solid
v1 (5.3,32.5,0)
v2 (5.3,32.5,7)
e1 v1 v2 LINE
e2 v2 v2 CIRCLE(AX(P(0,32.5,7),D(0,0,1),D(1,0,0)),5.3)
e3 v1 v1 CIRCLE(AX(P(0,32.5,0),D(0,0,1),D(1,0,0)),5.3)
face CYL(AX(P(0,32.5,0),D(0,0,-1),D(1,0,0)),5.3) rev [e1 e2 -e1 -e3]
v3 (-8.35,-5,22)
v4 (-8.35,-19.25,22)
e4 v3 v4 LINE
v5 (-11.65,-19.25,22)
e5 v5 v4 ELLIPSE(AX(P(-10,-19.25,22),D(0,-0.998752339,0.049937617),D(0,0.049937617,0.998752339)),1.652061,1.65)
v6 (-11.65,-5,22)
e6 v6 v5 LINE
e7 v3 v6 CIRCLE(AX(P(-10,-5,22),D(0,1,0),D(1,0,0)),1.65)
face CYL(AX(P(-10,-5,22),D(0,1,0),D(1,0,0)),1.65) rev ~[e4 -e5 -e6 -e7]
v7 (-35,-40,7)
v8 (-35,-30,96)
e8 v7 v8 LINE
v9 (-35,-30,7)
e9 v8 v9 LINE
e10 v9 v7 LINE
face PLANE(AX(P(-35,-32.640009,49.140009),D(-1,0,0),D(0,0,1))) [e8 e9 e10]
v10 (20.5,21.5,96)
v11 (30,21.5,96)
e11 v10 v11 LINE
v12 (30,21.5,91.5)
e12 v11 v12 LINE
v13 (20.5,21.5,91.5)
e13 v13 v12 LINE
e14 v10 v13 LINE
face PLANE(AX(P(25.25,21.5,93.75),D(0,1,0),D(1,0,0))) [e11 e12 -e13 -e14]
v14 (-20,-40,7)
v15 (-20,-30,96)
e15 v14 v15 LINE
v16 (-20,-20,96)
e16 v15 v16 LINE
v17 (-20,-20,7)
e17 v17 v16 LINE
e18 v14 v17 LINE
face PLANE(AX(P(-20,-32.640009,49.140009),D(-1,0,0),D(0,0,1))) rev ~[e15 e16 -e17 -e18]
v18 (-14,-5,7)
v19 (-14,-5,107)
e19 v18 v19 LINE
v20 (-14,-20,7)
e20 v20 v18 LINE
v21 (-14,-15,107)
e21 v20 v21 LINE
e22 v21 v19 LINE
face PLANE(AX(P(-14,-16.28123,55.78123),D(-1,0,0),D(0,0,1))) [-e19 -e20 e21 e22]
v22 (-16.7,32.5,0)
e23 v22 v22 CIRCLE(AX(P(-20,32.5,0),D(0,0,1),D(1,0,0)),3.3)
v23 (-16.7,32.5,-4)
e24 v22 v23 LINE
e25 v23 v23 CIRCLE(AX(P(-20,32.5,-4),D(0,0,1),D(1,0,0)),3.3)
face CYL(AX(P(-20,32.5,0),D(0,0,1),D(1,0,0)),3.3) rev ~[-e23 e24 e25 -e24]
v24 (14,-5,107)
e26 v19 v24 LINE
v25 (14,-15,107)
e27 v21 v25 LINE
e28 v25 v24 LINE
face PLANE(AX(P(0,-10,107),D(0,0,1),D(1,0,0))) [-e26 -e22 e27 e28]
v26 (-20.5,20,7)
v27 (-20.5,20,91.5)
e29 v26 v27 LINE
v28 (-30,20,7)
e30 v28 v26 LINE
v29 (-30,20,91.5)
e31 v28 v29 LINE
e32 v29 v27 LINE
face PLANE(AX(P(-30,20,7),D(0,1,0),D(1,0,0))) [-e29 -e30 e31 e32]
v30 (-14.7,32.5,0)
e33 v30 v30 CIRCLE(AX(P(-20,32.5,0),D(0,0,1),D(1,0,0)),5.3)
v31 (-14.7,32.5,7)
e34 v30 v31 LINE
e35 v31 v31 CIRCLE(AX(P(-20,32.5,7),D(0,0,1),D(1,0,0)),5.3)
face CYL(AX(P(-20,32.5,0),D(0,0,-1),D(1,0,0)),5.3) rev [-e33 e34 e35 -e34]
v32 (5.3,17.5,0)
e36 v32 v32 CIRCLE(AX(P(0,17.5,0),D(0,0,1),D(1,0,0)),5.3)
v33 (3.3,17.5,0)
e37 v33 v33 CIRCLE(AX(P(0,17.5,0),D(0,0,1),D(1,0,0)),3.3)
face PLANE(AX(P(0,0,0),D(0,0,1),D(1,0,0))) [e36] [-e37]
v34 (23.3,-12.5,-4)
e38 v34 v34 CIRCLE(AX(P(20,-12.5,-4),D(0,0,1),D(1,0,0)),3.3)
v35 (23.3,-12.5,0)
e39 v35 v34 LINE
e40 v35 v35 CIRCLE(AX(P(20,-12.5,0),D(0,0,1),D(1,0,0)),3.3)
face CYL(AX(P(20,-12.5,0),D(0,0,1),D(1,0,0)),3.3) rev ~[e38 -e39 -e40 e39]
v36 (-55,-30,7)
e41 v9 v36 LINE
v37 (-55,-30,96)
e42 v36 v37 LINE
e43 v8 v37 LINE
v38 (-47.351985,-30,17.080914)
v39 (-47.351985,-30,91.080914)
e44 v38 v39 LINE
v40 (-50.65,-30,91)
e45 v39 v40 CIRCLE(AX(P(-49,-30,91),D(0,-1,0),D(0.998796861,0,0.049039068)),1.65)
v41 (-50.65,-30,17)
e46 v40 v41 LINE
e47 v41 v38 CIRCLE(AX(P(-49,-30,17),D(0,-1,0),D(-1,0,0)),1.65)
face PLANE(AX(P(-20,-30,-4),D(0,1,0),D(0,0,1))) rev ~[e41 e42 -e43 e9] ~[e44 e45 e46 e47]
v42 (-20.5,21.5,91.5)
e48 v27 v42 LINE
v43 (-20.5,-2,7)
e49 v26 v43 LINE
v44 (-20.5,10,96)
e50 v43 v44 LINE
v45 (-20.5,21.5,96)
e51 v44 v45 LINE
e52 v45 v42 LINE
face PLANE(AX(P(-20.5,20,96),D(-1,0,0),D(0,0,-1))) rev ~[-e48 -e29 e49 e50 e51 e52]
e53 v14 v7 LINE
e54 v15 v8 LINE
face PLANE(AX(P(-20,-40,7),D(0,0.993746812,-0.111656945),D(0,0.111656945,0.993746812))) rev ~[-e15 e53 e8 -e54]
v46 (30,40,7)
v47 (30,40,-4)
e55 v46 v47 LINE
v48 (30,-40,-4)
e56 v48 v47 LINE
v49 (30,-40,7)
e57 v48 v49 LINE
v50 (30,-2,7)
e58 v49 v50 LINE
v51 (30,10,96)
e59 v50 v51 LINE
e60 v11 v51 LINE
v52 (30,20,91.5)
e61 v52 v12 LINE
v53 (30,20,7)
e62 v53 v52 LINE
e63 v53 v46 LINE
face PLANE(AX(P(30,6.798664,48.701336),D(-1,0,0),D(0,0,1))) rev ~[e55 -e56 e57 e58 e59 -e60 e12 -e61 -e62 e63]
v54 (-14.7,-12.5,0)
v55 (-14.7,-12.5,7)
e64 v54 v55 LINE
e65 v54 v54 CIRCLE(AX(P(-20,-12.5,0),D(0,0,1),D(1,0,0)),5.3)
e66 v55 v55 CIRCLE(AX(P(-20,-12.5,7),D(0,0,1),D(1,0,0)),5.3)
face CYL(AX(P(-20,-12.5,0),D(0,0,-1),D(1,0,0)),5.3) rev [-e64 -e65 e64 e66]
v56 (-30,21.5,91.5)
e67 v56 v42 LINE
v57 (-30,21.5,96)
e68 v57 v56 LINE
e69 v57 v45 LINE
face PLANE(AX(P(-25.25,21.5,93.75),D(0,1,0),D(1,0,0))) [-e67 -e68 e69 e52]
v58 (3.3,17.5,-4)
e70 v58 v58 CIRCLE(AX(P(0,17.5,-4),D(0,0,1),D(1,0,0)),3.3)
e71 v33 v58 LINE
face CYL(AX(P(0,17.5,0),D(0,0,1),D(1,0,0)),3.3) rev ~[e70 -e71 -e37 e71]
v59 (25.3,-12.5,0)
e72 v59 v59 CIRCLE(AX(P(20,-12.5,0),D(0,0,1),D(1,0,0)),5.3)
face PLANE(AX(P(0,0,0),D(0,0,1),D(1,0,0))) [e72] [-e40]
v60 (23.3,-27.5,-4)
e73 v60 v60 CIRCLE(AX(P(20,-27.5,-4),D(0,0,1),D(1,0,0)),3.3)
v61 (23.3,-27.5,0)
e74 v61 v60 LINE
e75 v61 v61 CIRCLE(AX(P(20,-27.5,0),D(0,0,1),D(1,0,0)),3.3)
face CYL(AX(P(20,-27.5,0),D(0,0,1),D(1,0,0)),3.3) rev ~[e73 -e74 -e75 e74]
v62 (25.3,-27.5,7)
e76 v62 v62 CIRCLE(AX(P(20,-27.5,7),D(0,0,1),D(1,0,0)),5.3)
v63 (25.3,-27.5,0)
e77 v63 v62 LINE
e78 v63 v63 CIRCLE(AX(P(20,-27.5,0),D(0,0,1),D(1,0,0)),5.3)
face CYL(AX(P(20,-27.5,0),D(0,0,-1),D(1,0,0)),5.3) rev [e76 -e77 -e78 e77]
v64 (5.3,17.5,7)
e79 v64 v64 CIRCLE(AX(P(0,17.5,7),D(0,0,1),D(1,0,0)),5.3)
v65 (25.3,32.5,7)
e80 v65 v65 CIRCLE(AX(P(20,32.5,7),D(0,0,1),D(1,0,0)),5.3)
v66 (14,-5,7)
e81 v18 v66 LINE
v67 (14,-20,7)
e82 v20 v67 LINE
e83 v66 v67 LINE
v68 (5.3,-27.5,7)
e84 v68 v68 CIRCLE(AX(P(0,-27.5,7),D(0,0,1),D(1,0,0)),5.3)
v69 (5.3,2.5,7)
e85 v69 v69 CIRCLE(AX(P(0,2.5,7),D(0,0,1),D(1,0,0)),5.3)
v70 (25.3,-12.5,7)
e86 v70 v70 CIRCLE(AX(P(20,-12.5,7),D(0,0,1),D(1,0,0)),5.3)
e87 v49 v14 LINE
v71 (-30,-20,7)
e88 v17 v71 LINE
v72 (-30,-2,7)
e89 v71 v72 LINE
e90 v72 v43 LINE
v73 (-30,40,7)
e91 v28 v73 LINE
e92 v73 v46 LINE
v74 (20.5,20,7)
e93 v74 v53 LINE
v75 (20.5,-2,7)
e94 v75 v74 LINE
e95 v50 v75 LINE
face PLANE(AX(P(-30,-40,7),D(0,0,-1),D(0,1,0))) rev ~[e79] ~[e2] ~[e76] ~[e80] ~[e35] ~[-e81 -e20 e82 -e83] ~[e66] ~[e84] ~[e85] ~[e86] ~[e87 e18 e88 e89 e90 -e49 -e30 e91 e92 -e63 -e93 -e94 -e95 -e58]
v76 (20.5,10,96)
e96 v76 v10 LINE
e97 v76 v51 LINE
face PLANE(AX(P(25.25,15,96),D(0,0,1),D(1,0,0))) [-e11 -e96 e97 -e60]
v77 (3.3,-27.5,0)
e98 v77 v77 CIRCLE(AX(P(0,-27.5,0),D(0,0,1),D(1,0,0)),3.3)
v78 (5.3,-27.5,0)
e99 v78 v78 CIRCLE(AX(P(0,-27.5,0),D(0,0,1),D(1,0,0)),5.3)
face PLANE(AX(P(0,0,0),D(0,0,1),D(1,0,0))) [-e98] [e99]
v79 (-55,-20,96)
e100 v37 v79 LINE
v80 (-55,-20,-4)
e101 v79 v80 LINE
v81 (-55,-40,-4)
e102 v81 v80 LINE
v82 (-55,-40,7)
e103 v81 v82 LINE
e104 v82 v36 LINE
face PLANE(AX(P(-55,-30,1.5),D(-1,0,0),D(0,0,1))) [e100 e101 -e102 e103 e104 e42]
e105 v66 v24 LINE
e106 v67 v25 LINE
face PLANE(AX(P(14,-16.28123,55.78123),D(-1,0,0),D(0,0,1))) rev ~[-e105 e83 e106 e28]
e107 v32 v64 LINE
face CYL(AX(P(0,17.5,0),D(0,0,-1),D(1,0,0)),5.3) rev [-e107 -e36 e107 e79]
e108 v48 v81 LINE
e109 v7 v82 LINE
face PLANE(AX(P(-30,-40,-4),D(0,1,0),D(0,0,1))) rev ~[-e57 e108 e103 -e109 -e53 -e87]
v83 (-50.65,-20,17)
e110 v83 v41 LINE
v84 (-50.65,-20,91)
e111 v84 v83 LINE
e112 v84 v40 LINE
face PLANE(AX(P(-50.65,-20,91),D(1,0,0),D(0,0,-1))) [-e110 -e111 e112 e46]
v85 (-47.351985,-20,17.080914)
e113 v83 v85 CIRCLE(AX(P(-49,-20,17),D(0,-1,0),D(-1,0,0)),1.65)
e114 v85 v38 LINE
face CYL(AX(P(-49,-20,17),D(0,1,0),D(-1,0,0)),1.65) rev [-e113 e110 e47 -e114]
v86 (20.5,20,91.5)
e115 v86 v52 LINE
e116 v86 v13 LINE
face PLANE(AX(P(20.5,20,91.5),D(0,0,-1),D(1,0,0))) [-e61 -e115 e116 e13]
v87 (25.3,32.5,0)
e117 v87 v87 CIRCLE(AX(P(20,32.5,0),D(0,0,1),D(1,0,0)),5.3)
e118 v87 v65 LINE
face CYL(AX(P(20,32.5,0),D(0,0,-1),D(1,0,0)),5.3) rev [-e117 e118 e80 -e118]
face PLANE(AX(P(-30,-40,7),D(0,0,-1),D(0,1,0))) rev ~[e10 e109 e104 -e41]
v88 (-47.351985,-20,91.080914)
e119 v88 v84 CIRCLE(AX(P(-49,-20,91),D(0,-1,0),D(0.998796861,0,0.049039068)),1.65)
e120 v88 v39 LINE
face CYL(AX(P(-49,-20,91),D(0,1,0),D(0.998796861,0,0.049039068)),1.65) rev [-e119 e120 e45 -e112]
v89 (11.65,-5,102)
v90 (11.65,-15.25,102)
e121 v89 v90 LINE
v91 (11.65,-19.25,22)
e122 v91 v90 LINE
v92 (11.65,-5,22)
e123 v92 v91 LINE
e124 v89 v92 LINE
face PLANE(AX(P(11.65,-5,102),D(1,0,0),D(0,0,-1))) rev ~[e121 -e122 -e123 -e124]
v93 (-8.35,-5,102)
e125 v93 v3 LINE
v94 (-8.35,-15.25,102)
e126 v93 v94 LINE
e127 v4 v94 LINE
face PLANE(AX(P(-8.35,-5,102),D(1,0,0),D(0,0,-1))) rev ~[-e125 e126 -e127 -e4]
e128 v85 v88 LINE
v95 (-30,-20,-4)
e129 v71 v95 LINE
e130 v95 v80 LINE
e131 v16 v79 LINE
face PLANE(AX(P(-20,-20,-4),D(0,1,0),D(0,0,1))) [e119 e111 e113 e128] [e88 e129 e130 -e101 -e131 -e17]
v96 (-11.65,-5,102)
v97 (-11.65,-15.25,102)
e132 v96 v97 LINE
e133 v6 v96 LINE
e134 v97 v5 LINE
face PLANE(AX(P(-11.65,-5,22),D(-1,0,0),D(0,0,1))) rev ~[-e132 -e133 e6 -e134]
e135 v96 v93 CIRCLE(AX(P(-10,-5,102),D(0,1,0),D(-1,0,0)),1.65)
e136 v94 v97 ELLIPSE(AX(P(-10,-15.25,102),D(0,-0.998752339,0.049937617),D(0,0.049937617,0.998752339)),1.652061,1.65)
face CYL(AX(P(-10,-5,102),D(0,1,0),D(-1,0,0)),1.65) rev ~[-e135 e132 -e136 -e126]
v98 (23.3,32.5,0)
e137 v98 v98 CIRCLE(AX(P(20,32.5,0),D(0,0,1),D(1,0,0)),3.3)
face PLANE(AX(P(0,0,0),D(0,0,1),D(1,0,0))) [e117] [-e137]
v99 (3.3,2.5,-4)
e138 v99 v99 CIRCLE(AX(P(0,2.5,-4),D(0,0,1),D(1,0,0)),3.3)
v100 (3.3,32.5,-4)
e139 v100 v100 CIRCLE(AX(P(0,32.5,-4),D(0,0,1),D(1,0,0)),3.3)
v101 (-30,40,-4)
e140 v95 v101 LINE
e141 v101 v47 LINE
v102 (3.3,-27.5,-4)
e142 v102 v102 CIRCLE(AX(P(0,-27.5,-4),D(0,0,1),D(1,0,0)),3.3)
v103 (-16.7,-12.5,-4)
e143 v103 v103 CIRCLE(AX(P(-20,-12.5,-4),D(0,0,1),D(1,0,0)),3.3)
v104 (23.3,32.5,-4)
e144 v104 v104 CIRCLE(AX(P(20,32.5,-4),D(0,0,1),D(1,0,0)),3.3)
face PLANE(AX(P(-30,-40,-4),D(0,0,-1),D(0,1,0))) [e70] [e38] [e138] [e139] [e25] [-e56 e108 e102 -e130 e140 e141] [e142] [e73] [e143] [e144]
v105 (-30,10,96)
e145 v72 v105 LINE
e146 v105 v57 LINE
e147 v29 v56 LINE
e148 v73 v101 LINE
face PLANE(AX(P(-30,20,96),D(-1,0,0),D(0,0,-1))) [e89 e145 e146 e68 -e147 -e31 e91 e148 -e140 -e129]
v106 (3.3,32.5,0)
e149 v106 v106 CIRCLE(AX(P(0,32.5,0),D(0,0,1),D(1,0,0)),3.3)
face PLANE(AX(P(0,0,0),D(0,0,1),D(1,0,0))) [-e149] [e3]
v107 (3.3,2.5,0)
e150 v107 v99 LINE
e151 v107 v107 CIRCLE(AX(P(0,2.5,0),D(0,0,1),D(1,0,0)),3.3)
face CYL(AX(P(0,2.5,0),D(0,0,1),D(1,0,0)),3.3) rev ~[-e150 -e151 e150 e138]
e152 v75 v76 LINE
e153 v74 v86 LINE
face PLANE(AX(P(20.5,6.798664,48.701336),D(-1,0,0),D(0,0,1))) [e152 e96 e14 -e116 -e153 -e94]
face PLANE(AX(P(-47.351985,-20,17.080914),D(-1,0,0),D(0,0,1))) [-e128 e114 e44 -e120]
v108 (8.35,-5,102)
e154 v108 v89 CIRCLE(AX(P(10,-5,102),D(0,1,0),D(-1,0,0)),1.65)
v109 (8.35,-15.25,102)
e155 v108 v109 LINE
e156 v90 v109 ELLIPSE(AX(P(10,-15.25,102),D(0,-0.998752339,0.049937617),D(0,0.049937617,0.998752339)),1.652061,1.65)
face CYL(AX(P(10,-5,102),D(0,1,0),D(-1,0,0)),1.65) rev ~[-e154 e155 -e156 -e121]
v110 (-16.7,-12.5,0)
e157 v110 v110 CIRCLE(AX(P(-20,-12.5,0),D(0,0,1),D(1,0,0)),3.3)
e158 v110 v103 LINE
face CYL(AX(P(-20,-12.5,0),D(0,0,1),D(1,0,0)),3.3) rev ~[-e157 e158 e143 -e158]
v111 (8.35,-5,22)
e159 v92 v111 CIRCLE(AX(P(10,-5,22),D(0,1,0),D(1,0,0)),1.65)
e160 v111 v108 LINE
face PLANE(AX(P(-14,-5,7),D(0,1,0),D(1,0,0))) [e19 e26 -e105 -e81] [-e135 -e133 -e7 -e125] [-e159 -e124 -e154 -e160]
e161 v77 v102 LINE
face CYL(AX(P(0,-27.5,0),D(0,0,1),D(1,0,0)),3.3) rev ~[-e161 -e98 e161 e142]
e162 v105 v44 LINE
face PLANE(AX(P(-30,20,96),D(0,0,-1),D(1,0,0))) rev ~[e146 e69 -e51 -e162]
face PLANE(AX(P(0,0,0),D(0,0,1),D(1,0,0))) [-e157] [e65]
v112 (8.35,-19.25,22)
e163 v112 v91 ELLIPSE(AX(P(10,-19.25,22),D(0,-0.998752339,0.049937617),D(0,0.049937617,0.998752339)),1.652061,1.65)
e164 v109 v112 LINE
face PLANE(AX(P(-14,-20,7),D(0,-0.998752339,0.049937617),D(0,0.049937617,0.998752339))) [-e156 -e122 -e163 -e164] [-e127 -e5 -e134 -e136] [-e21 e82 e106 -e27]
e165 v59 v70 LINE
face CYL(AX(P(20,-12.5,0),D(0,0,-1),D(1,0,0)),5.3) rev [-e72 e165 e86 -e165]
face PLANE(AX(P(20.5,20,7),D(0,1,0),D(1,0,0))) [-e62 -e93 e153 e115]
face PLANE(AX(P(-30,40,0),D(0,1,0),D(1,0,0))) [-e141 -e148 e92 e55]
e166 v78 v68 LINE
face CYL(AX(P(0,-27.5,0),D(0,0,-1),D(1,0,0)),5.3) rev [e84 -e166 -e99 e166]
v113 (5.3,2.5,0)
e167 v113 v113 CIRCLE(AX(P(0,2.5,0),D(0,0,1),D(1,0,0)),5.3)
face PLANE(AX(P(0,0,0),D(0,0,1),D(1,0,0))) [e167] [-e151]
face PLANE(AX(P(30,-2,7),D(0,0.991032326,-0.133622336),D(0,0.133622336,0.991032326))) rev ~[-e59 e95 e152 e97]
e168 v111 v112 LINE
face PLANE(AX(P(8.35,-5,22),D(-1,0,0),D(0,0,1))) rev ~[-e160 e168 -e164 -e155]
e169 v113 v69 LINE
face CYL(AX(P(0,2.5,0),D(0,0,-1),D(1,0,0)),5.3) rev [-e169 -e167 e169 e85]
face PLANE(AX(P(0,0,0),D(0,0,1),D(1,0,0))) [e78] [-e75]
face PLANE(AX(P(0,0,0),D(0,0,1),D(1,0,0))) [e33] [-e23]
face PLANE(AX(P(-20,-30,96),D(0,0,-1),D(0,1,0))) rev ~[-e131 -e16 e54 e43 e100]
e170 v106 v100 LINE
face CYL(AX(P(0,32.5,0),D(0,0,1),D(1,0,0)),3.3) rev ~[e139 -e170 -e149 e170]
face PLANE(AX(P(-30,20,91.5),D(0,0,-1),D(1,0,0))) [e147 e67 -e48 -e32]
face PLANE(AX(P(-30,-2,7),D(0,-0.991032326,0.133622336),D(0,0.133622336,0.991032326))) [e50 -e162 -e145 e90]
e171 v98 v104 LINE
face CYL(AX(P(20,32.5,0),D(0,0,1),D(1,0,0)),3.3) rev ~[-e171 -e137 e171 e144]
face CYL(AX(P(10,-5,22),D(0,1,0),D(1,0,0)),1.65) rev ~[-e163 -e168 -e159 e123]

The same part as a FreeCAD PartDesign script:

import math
import FreeCAD as App
import Part
import Sketcher

V = App.Vector
Q = App.Units.Quantity

doc = App.newDocument("Part")
params = doc.addObject("Spreadsheet::Sheet", "Params")
for row, (alias, value) in enumerate([
    ("sketch1_diameter", "6.6 mm"),
    ("sketch1_width", "60 mm"),
    ("sketch1_height", "80 mm"),
    ("pad1_length", "4 mm"),
    ("sketch2_diameter", "10.6 mm"),
    ("sketch2_width", "60 mm"),
    ("sketch2_height", "80 mm"),
    ("pad2_length", "7 mm"),
    ("sketch3_height", "10 mm"),
    ("sketch3_width", "9.5 mm"),
    ("pad3_length", "89 mm"),
    ("sketch4_width", "12 mm"),
    ("sketch4_height", "89 mm"),
    ("pad4_length", "9.5 mm"),
    ("sketch5_width", "12 mm"),
    ("sketch5_height", "89 mm"),
    ("pad5_length", "9.5 mm"),
    ("sketch6_width", "9.5 mm"),
    ("sketch6_height", "4.5 mm"),
    ("pad6_length", "1.5 mm"),
    ("sketch7_width", "28 mm"),
    ("sketch7_height", "10 mm"),
    ("pad7_length", "100 mm"),
    ("sketch8_width", "5 mm"),
    ("sketch8_height", "100 mm"),
    ("pad8_length", "28 mm"),
    ("sketch9_height", "80 mm"),
    ("sketch9_radius", "1.65 mm"),
    ("pocket1_length", "18 mm"),
    ("sketch10_width", "10 mm"),
    ("sketch10_height", "100 mm"),
    ("pad9_length", "25 mm"),
    ("pad9_length2", "10 mm"),
    ("sketch11_width", "20 mm"),
    ("sketch11_height", "11 mm"),
    ("pad10_length", "25 mm"),
    ("sketch12_height", "74 mm"),
    ("sketch12_radius", "1.65 mm"),
    ("pocket2_length", "10 mm"),
    ("sketch13_width", "10 mm"),
    ("sketch13_height", "89 mm"),
    ("pad11_length", "15 mm"),
], start=1):
    params.set(f"A{row}", alias)
    params.set(f"B{row}", "=" + value)
    params.setAlias(f"B{row}", alias)

body = doc.addObject("PartDesign::Body", "Body")

sketch1 = body.newObject("Sketcher::SketchObject", "Sketch")
sketch1.AttachmentSupport = (doc.getObject("XY_Plane"), [""])
sketch1.MapMode = "FlatFace"
sketch1.addGeometry([
    Part.LineSegment(V(-30, 40, 0), V(-30, -40, 0)),
    Part.LineSegment(V(-30, -40, 0), V(30, -40, 0)),
    Part.LineSegment(V(30, -40, 0), V(30, 40, 0)),
    Part.LineSegment(V(30, 40, 0), V(-30, 40, 0)),
    Part.Circle(V(-20, -12.5, 0), V(0, 0, 1), 3.3),
    Part.Circle(V(0, -27.5, 0), V(0, 0, 1), 3.3),
    Part.Circle(V(20, -27.5, 0), V(0, 0, 1), 3.3),
    Part.Circle(V(20, -12.5, 0), V(0, 0, 1), 3.3),
    Part.Circle(V(-20, 32.5, 0), V(0, 0, 1), 3.3),
    Part.Circle(V(0, 2.5, 0), V(0, 0, 1), 3.3),
    Part.Circle(V(0, 17.5, 0), V(0, 0, 1), 3.3),
    Part.Circle(V(0, 32.5, 0), V(0, 0, 1), 3.3),
    Part.Circle(V(20, 32.5, 0), V(0, 0, 1), 3.3),
], False)
sketch1.addConstraint([
    Sketcher.Constraint("Coincident", 0, 2, 1, 1),
    Sketcher.Constraint("Coincident", 1, 2, 2, 1),
    Sketcher.Constraint("Coincident", 2, 2, 3, 1),
    Sketcher.Constraint("Coincident", 3, 2, 0, 1),
    Sketcher.Constraint("Vertical", 0),
    Sketcher.Constraint("Horizontal", 1),
    Sketcher.Constraint("Vertical", 2),
    Sketcher.Constraint("Horizontal", 3),
    Sketcher.Constraint("Equal", 4, 5),
    Sketcher.Constraint("Equal", 5, 6),
    Sketcher.Constraint("Equal", 6, 7),
    Sketcher.Constraint("Equal", 7, 8),
    Sketcher.Constraint("Equal", 8, 9),
    Sketcher.Constraint("Equal", 9, 10),
    Sketcher.Constraint("Equal", 10, 11),
    Sketcher.Constraint("Equal", 11, 12),
    Sketcher.Constraint("Symmetric", 0, 2, 2, 2, -1, 1),
    Sketcher.Constraint("Symmetric", 4, 3, 7, 3, -2),
    Sketcher.Constraint("Symmetric", 8, 3, 12, 3, -2),
    Sketcher.Constraint("PointOnObject", 5, 3, -2),
    Sketcher.Constraint("PointOnObject", 9, 3, -2),
    Sketcher.Constraint("PointOnObject", 10, 3, -2),
    Sketcher.Constraint("PointOnObject", 11, 3, -2),
    Sketcher.Constraint("Horizontal", 5, 3, 6, 3),
    Sketcher.Constraint("Horizontal", 8, 3, 11, 3),
    Sketcher.Constraint("Vertical", 6, 3, 7, 3),
    Sketcher.Constraint("Vertical", 4, 3, 8, 3),
    Sketcher.Constraint("Diameter", 4, Q("6.6 mm")),
    Sketcher.Constraint("DistanceX", 1, 1, 1, 2, Q("60 mm")),
    Sketcher.Constraint("DistanceY", 0, 2, 0, 1, Q("80 mm")),
    Sketcher.Constraint("DistanceX", 4, 3, -1, 1, Q("20 mm")),
    Sketcher.Constraint("DistanceY", 5, 3, 4, 3, Q("15 mm")),
    Sketcher.Constraint("DistanceY", 4, 3, 8, 3, Q("45 mm")),
    Sketcher.Constraint("DistanceY", 4, 3, 9, 3, Q("15 mm")),
    Sketcher.Constraint("DistanceY", 9, 3, 10, 3, Q("15 mm")),
    Sketcher.Constraint("DistanceY", 4, 3, -1, 1, Q("12.5 mm")),
])
sketch1.setExpression("Constraints[27]", "Params.sketch1_diameter")
sketch1.setExpression("Constraints[28]", "Params.sketch1_width")
sketch1.setExpression("Constraints[29]", "Params.sketch1_height")
pad1 = body.newObject("PartDesign::Pad", "Pad")
pad1.Profile = sketch1
pad1.setExpression("Length", "Params.pad1_length")
pad1.Reversed = True

sketch2 = body.newObject("Sketcher::SketchObject", "Sketch001")
sketch2.AttachmentSupport = (doc.getObject("XY_Plane"), [""])
sketch2.MapMode = "FlatFace"
sketch2.addGeometry([
    Part.LineSegment(V(-30, 40, 0), V(-30, -40, 0)),
    Part.LineSegment(V(-30, -40, 0), V(30, -40, 0)),
    Part.LineSegment(V(30, -40, 0), V(30, 40, 0)),
    Part.LineSegment(V(30, 40, 0), V(-30, 40, 0)),
    Part.Circle(V(-20, -12, 0), V(0, 0, 1), 5),
    Part.Circle(V(0, -28, 0), V(0, 0, 1), 5),
    Part.Circle(V(20, -28, 0), V(0, 0, 1), 5),
    Part.Circle(V(20, -12, 0), V(0, 0, 1), 5),
    Part.Circle(V(-20, 32, 0), V(0, 0, 1), 5),
    Part.Circle(V(0, 2, 0), V(0, 0, 1), 5),
    Part.Circle(V(0, 18, 0), V(0, 0, 1), 5),
    Part.Circle(V(0, 32, 0), V(0, 0, 1), 5),
    Part.Circle(V(20, 32, 0), V(0, 0, 1), 5),
], False)
sketch2.addConstraint([
    Sketcher.Constraint("Coincident", 0, 2, 1, 1),
    Sketcher.Constraint("Coincident", 1, 2, 2, 1),
    Sketcher.Constraint("Coincident", 2, 2, 3, 1),
    Sketcher.Constraint("Coincident", 3, 2, 0, 1),
    Sketcher.Constraint("Vertical", 0),
    Sketcher.Constraint("Horizontal", 1),
    Sketcher.Constraint("Vertical", 2),
    Sketcher.Constraint("Horizontal", 3),
    Sketcher.Constraint("Equal", 4, 5),
    Sketcher.Constraint("Equal", 5, 6),
    Sketcher.Constraint("Equal", 6, 7),
    Sketcher.Constraint("Equal", 7, 8),
    Sketcher.Constraint("Equal", 8, 9),
    Sketcher.Constraint("Equal", 9, 10),
    Sketcher.Constraint("Equal", 10, 11),
    Sketcher.Constraint("Equal", 11, 12),
    Sketcher.Constraint("Symmetric", 0, 2, 2, 2, -1, 1),
    Sketcher.Constraint("Symmetric", 4, 3, 7, 3, -2),
    Sketcher.Constraint("Symmetric", 8, 3, 12, 3, -2),
    Sketcher.Constraint("PointOnObject", 5, 3, -2),
    Sketcher.Constraint("PointOnObject", 9, 3, -2),
    Sketcher.Constraint("PointOnObject", 10, 3, -2),
    Sketcher.Constraint("PointOnObject", 11, 3, -2),
    Sketcher.Constraint("Horizontal", 5, 3, 6, 3),
    Sketcher.Constraint("Horizontal", 8, 3, 11, 3),
    Sketcher.Constraint("Vertical", 6, 3, 7, 3),
    Sketcher.Constraint("Vertical", 4, 3, 8, 3),
    Sketcher.Constraint("Diameter", 4, Q("10.6 mm")),
    Sketcher.Constraint("DistanceX", 1, 1, 1, 2, Q("60 mm")),
    Sketcher.Constraint("DistanceY", 0, 2, 0, 1, Q("80 mm")),
    Sketcher.Constraint("DistanceX", 4, 3, -1, 1, Q("20 mm")),
    Sketcher.Constraint("DistanceY", 5, 3, 4, 3, Q("15 mm")),
    Sketcher.Constraint("DistanceY", 4, 3, 8, 3, Q("45 mm")),
    Sketcher.Constraint("DistanceY", 4, 3, 9, 3, Q("15 mm")),
    Sketcher.Constraint("DistanceY", 9, 3, 10, 3, Q("15 mm")),
    Sketcher.Constraint("DistanceY", 4, 3, -1, 1, Q("12.5 mm")),
])
sketch2.setExpression("Constraints[27]", "Params.sketch2_diameter")
sketch2.setExpression("Constraints[28]", "Params.sketch2_width")
sketch2.setExpression("Constraints[29]", "Params.sketch2_height")
pad2 = body.newObject("PartDesign::Pad", "Pad001")
pad2.Profile = sketch2
pad2.setExpression("Length", "Params.pad2_length")

sketch3 = body.newObject("Sketcher::SketchObject", "Sketch002")
sketch3.AttachmentSupport = (doc.getObject("XY_Plane"), [""])
sketch3.MapMode = "FlatFace"
sketch3.AttachmentOffset = App.Placement(V(0, 0, 7), App.Rotation())
sketch3.addGeometry([
    Part.LineSegment(V(-30, 20, 0), V(-30, 10, 0)),
    Part.LineSegment(V(-30, 10, 0), V(-20, 10, 0)),
    Part.LineSegment(V(-20, 10, 0), V(-20, 20, 0)),
    Part.LineSegment(V(-20, 20, 0), V(-30, 20, 0)),
    Part.LineSegment(V(20, 20, 0), V(20, 10, 0)),
    Part.LineSegment(V(20, 10, 0), V(30, 10, 0)),
    Part.LineSegment(V(30, 10, 0), V(30, 20, 0)),
    Part.LineSegment(V(30, 20, 0), V(20, 20, 0)),
], False)
sketch3.addConstraint([
    Sketcher.Constraint("Coincident", 0, 2, 1, 1),
    Sketcher.Constraint("Coincident", 1, 2, 2, 1),
    Sketcher.Constraint("Coincident", 2, 2, 3, 1),
    Sketcher.Constraint("Coincident", 3, 2, 0, 1),
    Sketcher.Constraint("Coincident", 4, 2, 5, 1),
    Sketcher.Constraint("Coincident", 5, 2, 6, 1),
    Sketcher.Constraint("Coincident", 6, 2, 7, 1),
    Sketcher.Constraint("Coincident", 7, 2, 4, 1),
    Sketcher.Constraint("Vertical", 0),
    Sketcher.Constraint("Horizontal", 1),
    Sketcher.Constraint("Vertical", 2),
    Sketcher.Constraint("Horizontal", 3),
    Sketcher.Constraint("Vertical", 4),
    Sketcher.Constraint("Horizontal", 5),
    Sketcher.Constraint("Vertical", 6),
    Sketcher.Constraint("Horizontal", 7),
    Sketcher.Constraint("Symmetric", 1, 2, 4, 2, -2),
    Sketcher.Constraint("Symmetric", 3, 2, 6, 2, -2),
    Sketcher.Constraint("DistanceY", 0, 2, 0, 1, Q("10 mm")),
    Sketcher.Constraint("DistanceX", 1, 1, 1, 2, Q("9.5 mm")),
    Sketcher.Constraint("DistanceX", 0, 2, -1, 1, Q("30 mm")),
    Sketcher.Constraint("DistanceY", -1, 1, 0, 2, Q("10 mm")),
])
sketch3.setExpression("Constraints[18]", "Params.sketch3_height")
sketch3.setExpression("Constraints[19]", "Params.sketch3_width")
pad3 = body.newObject("PartDesign::Pad", "Pad002")
pad3.Profile = sketch3
pad3.setExpression("Length", "Params.pad3_length")

sketch4 = body.newObject("Sketcher::SketchObject", "Sketch003")
sketch4.AttachmentSupport = (doc.getObject("YZ_Plane"), [""])
sketch4.MapMode = "FlatFace"
sketch4.AttachmentOffset = App.Placement(V(0, 0, 30), App.Rotation())
sketch4.addGeometry([
    Part.LineSegment(V(10, 7, 0), V(10, 96, 0)),
    Part.LineSegment(V(10, 96, 0), V(-2, 7, 0)),
    Part.LineSegment(V(-2, 7, 0), V(10, 7, 0)),
], False)
sketch4.addConstraint([
    Sketcher.Constraint("Coincident", 0, 2, 1, 1),
    Sketcher.Constraint("Coincident", 1, 2, 2, 1),
    Sketcher.Constraint("Coincident", 2, 2, 0, 1),
    Sketcher.Constraint("Vertical", 0),
    Sketcher.Constraint("Horizontal", 2),
    Sketcher.Constraint("DistanceX", 2, 1, 2, 2, Q("12 mm")),
    Sketcher.Constraint("DistanceY", 0, 1, 0, 2, Q("89 mm")),
    Sketcher.Constraint("DistanceX", -1, 1, 0, 2, Q("10 mm")),
    Sketcher.Constraint("DistanceY", -1, 1, 0, 2, Q("96 mm")),
])
sketch4.setExpression("Constraints[5]", "Params.sketch4_width")
sketch4.setExpression("Constraints[6]", "Params.sketch4_height")
pad4 = body.newObject("PartDesign::Pad", "Pad003")
pad4.Profile = sketch4
pad4.setExpression("Length", "Params.pad4_length")
pad4.Reversed = True

sketch5 = body.newObject("Sketcher::SketchObject", "Sketch004")
sketch5.AttachmentSupport = (doc.getObject("YZ_Plane"), [""])
sketch5.MapMode = "FlatFace"
sketch5.AttachmentOffset = App.Placement(V(0, 0, -30), App.Rotation())
sketch5.addGeometry([
    Part.LineSegment(V(10, 96, 0), V(10, 7, 0)),
    Part.LineSegment(V(10, 7, 0), V(-2, 7, 0)),
    Part.LineSegment(V(-2, 7, 0), V(10, 96, 0)),
], False)
sketch5.addConstraint([
    Sketcher.Constraint("Coincident", 0, 2, 1, 1),
    Sketcher.Constraint("Coincident", 1, 2, 2, 1),
    Sketcher.Constraint("Coincident", 2, 2, 0, 1),
    Sketcher.Constraint("Vertical", 0),
    Sketcher.Constraint("Horizontal", 1),
    Sketcher.Constraint("DistanceX", 1, 2, 1, 1, Q("12 mm")),
    Sketcher.Constraint("DistanceY", 0, 2, 0, 1, Q("89 mm")),
    Sketcher.Constraint("DistanceX", -1, 1, 0, 2, Q("10 mm")),
    Sketcher.Constraint("DistanceY", -1, 1, 0, 2, Q("7 mm")),
])
sketch5.setExpression("Constraints[5]", "Params.sketch5_width")
sketch5.setExpression("Constraints[6]", "Params.sketch5_height")
pad5 = body.newObject("PartDesign::Pad", "Pad004")
pad5.Profile = sketch5
pad5.setExpression("Length", "Params.pad5_length")

sketch6 = body.newObject("Sketcher::SketchObject", "Sketch005")
sketch6.AttachmentSupport = (doc.getObject("XZ_Plane"), [""])
sketch6.MapMode = "FlatFace"
sketch6.AttachmentOffset = App.Placement(V(0, 0, -20), App.Rotation())
sketch6.addGeometry([
    Part.LineSegment(V(-30, 91.5, 0), V(-30, 96, 0)),
    Part.LineSegment(V(-30, 96, 0), V(-20.5, 96, 0)),
    Part.LineSegment(V(-20.5, 96, 0), V(-20.5, 91.5, 0)),
    Part.LineSegment(V(-20.5, 91.5, 0), V(-30, 91.5, 0)),
    Part.LineSegment(V(20.5, 91.5, 0), V(20.5, 96, 0)),
    Part.LineSegment(V(20.5, 96, 0), V(30, 96, 0)),
    Part.LineSegment(V(30, 96, 0), V(30, 91.5, 0)),
    Part.LineSegment(V(30, 91.5, 0), V(20.5, 91.5, 0)),
], False)
sketch6.addConstraint([
    Sketcher.Constraint("Coincident", 0, 2, 1, 1),
    Sketcher.Constraint("Coincident", 1, 2, 2, 1),
    Sketcher.Constraint("Coincident", 2, 2, 3, 1),
    Sketcher.Constraint("Coincident", 3, 2, 0, 1),
    Sketcher.Constraint("Coincident", 4, 2, 5, 1),
    Sketcher.Constraint("Coincident", 5, 2, 6, 1),
    Sketcher.Constraint("Coincident", 6, 2, 7, 1),
    Sketcher.Constraint("Coincident", 7, 2, 4, 1),
    Sketcher.Constraint("Vertical", 0),
    Sketcher.Constraint("Horizontal", 1),
    Sketcher.Constraint("Vertical", 2),
    Sketcher.Constraint("Horizontal", 3),
    Sketcher.Constraint("Vertical", 4),
    Sketcher.Constraint("Horizontal", 5),
    Sketcher.Constraint("Vertical", 6),
    Sketcher.Constraint("Horizontal", 7),
    Sketcher.Constraint("Symmetric", 1, 2, 4, 2, -2),
    Sketcher.Constraint("Symmetric", 3, 2, 6, 2, -2),
    Sketcher.Constraint("DistanceX", 1, 1, 1, 2, Q("9.5 mm")),
    Sketcher.Constraint("DistanceY", 0, 1, 0, 2, Q("4.5 mm")),
    Sketcher.Constraint("DistanceX", 0, 2, -1, 1, Q("30 mm")),
    Sketcher.Constraint("DistanceY", -1, 1, 0, 2, Q("96 mm")),
])
sketch6.setExpression("Constraints[18]", "Params.sketch6_width")
sketch6.setExpression("Constraints[19]", "Params.sketch6_height")
pad6 = body.newObject("PartDesign::Pad", "Pad005")
pad6.Profile = sketch6
pad6.setExpression("Length", "Params.pad6_length")
pad6.Reversed = True

sketch7 = body.newObject("Sketcher::SketchObject", "Sketch006")
sketch7.AttachmentSupport = (doc.getObject("XY_Plane"), [""])
sketch7.MapMode = "FlatFace"
sketch7.AttachmentOffset = App.Placement(V(0, 0, 7), App.Rotation())
sketch7.addGeometry([
    Part.LineSegment(V(-14, -5, 0), V(-14, -15, 0)),
    Part.LineSegment(V(-14, -15, 0), V(14, -15, 0)),
    Part.LineSegment(V(14, -15, 0), V(14, -5, 0)),
    Part.LineSegment(V(14, -5, 0), V(-14, -5, 0)),
], False)
sketch7.addConstraint([
    Sketcher.Constraint("Coincident", 0, 2, 1, 1),
    Sketcher.Constraint("Coincident", 1, 2, 2, 1),
    Sketcher.Constraint("Coincident", 2, 2, 3, 1),
    Sketcher.Constraint("Coincident", 3, 2, 0, 1),
    Sketcher.Constraint("Vertical", 0),
    Sketcher.Constraint("Horizontal", 1),
    Sketcher.Constraint("Vertical", 2),
    Sketcher.Constraint("Horizontal", 3),
    Sketcher.Constraint("DistanceX", 1, 1, 1, 2, Q("28 mm")),
    Sketcher.Constraint("DistanceY", 0, 2, 0, 1, Q("10 mm")),
    Sketcher.Constraint("DistanceX", 0, 2, -1, 1, Q("14 mm")),
    Sketcher.Constraint("DistanceY", 0, 2, -1, 1, Q("15 mm")),
])
sketch7.setExpression("Constraints[8]", "Params.sketch7_width")
sketch7.setExpression("Constraints[9]", "Params.sketch7_height")
pad7 = body.newObject("PartDesign::Pad", "Pad006")
pad7.Profile = sketch7
pad7.setExpression("Length", "Params.pad7_length")

sketch8 = body.newObject("Sketcher::SketchObject", "Sketch007")
sketch8.AttachmentSupport = (doc.getObject("YZ_Plane"), [""])
sketch8.MapMode = "FlatFace"
sketch8.AttachmentOffset = App.Placement(V(0, 0, -14), App.Rotation())
sketch8.addGeometry([
    Part.LineSegment(V(-15, 107, 0), V(-15, 7, 0)),
    Part.LineSegment(V(-15, 7, 0), V(-20, 7, 0)),
    Part.LineSegment(V(-20, 7, 0), V(-15, 107, 0)),
], False)
sketch8.addConstraint([
    Sketcher.Constraint("Coincident", 0, 2, 1, 1),
    Sketcher.Constraint("Coincident", 1, 2, 2, 1),
    Sketcher.Constraint("Coincident", 2, 2, 0, 1),
    Sketcher.Constraint("Vertical", 0),
    Sketcher.Constraint("Horizontal", 1),
    Sketcher.Constraint("DistanceX", 1, 2, 1, 1, Q("5 mm")),
    Sketcher.Constraint("DistanceY", 0, 2, 0, 1, Q("100 mm")),
    Sketcher.Constraint("DistanceX", 0, 2, -1, 1, Q("15 mm")),
    Sketcher.Constraint("DistanceY", -1, 1, 0, 2, Q("7 mm")),
])
sketch8.setExpression("Constraints[5]", "Params.sketch8_width")
sketch8.setExpression("Constraints[6]", "Params.sketch8_height")
pad8 = body.newObject("PartDesign::Pad", "Pad007")
pad8.Profile = sketch8
pad8.setExpression("Length", "Params.pad8_length")

sketch9 = body.newObject("Sketcher::SketchObject", "Sketch008")
sketch9.AttachmentSupport = (doc.getObject("XZ_Plane"), [""])
sketch9.MapMode = "FlatFace"
sketch9.AttachmentOffset = App.Placement(V(0, 0, 5), App.Rotation())
sketch9.addGeometry([
    Part.LineSegment(V(-11.7, 22, 0), V(-11.7, 102, 0)),
    Part.ArcOfCircle(Part.Circle(V(-10, 102, 0), V(0, 0, 1), 1.6), math.radians(0), math.radians(180)),
    Part.LineSegment(V(-8.3, 102, 0), V(-8.3, 22, 0)),
    Part.ArcOfCircle(Part.Circle(V(-10, 22, 0), V(0, 0, 1), 1.6), math.radians(180), math.radians(360)),
    Part.LineSegment(V(8.3, 22, 0), V(8.3, 102, 0)),
    Part.ArcOfCircle(Part.Circle(V(10, 102, 0), V(0, 0, 1), 1.6), math.radians(0), math.radians(180)),
    Part.LineSegment(V(11.7, 102, 0), V(11.7, 22, 0)),
    Part.ArcOfCircle(Part.Circle(V(10, 22, 0), V(0, 0, 1), 1.6), math.radians(180), math.radians(360)),
], False)
sketch9.addConstraint([
    Sketcher.Constraint("Tangent", 0, 2, 1, 2),
    Sketcher.Constraint("Tangent", 1, 1, 2, 1),
    Sketcher.Constraint("Tangent", 2, 2, 3, 2),
    Sketcher.Constraint("Tangent", 3, 1, 0, 1),
    Sketcher.Constraint("Tangent", 4, 2, 5, 2),
    Sketcher.Constraint("Tangent", 5, 1, 6, 1),
    Sketcher.Constraint("Tangent", 6, 2, 7, 2),
    Sketcher.Constraint("Tangent", 7, 1, 4, 1),
    Sketcher.Constraint("Vertical", 0),
    Sketcher.Constraint("Vertical", 2),
    Sketcher.Constraint("Vertical", 4),
    Sketcher.Constraint("Vertical", 6),
    Sketcher.Constraint("Equal", 3, 5),
    Sketcher.Constraint("Symmetric", 1, 3, 5, 3, -2),
    Sketcher.Constraint("Horizontal", 3, 3, 7, 3),
    Sketcher.Constraint("DistanceY", 0, 1, 0, 2, Q("80 mm")),
    Sketcher.Constraint("Radius", 1, Q("1.65 mm")),
    Sketcher.Constraint("DistanceX", 1, 3, -1, 1, Q("10 mm")),
    Sketcher.Constraint("DistanceY", -1, 1, 1, 3, Q("102 mm")),
])
sketch9.setExpression("Constraints[15]", "Params.sketch9_height")
sketch9.setExpression("Constraints[16]", "Params.sketch9_radius")
pocket1 = body.newObject("PartDesign::Pocket", "Pocket")
pocket1.Profile = sketch9
pocket1.setExpression("Length", "Params.pocket1_length")
pocket1.Reversed = True
body2 = doc.addObject("PartDesign::Body", "Body001")

sketch10 = body2.newObject("Sketcher::SketchObject", "Sketch009")
sketch10.AttachmentSupport = (doc.getObject("YZ_Plane001"), [""])
sketch10.MapMode = "FlatFace"
sketch10.AttachmentOffset = App.Placement(V(0, 0, -30), App.Rotation())
sketch10.addGeometry([
    Part.LineSegment(V(-20, -4, 0), V(-30, -4, 0)),
    Part.LineSegment(V(-30, -4, 0), V(-30, 96, 0)),
    Part.LineSegment(V(-30, 96, 0), V(-20, 96, 0)),
    Part.LineSegment(V(-20, 96, 0), V(-20, -4, 0)),
], False)
sketch10.addConstraint([
    Sketcher.Constraint("Coincident", 0, 2, 1, 1),
    Sketcher.Constraint("Coincident", 1, 2, 2, 1),
    Sketcher.Constraint("Coincident", 2, 2, 3, 1),
    Sketcher.Constraint("Coincident", 3, 2, 0, 1),
    Sketcher.Constraint("Horizontal", 0),
    Sketcher.Constraint("Vertical", 1),
    Sketcher.Constraint("Horizontal", 2),
    Sketcher.Constraint("Vertical", 3),
    Sketcher.Constraint("DistanceX", 0, 2, 0, 1, Q("10 mm")),
    Sketcher.Constraint("DistanceY", 1, 1, 1, 2, Q("100 mm")),
    Sketcher.Constraint("DistanceX", 0, 2, -1, 1, Q("30 mm")),
    Sketcher.Constraint("DistanceY", 0, 2, -1, 1, Q("4 mm")),
])
sketch10.setExpression("Constraints[8]", "Params.sketch10_width")
sketch10.setExpression("Constraints[9]", "Params.sketch10_height")
pad9 = body2.newObject("PartDesign::Pad", "Pad008")
pad9.Profile = sketch10
pad9.Type = "TwoLengths"
pad9.setExpression("Length", "Params.pad9_length")
pad9.setExpression("Length2", "Params.pad9_length2")
pad9.Reversed = True
doc.recompute()

boolean = body.newObject("PartDesign::Boolean", "Boolean")
boolean.Type = "Fuse"
boolean.addObjects([body2])

sketch11 = body.newObject("Sketcher::SketchObject", "Sketch010")
sketch11.AttachmentSupport = (doc.getObject("YZ_Plane"), [""])
sketch11.MapMode = "FlatFace"
sketch11.AttachmentOffset = App.Placement(V(0, 0, -30), App.Rotation())
sketch11.addGeometry([
    Part.LineSegment(V(-20, -4, 0), V(-40, -4, 0)),
    Part.LineSegment(V(-40, -4, 0), V(-40, 7, 0)),
    Part.LineSegment(V(-40, 7, 0), V(-20, 7, 0)),
    Part.LineSegment(V(-20, 7, 0), V(-20, -4, 0)),
], False)
sketch11.addConstraint([
    Sketcher.Constraint("Coincident", 0, 2, 1, 1),
    Sketcher.Constraint("Coincident", 1, 2, 2, 1),
    Sketcher.Constraint("Coincident", 2, 2, 3, 1),
    Sketcher.Constraint("Coincident", 3, 2, 0, 1),
    Sketcher.Constraint("Horizontal", 0),
    Sketcher.Constraint("Vertical", 1),
    Sketcher.Constraint("Horizontal", 2),
    Sketcher.Constraint("Vertical", 3),
    Sketcher.Constraint("DistanceX", 0, 2, 0, 1, Q("20 mm")),
    Sketcher.Constraint("DistanceY", 1, 1, 1, 2, Q("11 mm")),
    Sketcher.Constraint("DistanceX", 0, 2, -1, 1, Q("40 mm")),
    Sketcher.Constraint("DistanceY", 0, 2, -1, 1, Q("4 mm")),
])
sketch11.setExpression("Constraints[8]", "Params.sketch11_width")
sketch11.setExpression("Constraints[9]", "Params.sketch11_height")
pad10 = body.newObject("PartDesign::Pad", "Pad009")
pad10.Profile = sketch11
pad10.setExpression("Length", "Params.pad10_length")
pad10.Reversed = True

sketch12 = body.newObject("Sketcher::SketchObject", "Sketch011")
sketch12.AttachmentSupport = (doc.getObject("XZ_Plane"), [""])
sketch12.MapMode = "FlatFace"
sketch12.AttachmentOffset = App.Placement(V(0, 0, 20), App.Rotation())
sketch12.addGeometry([
    Part.LineSegment(V(-50.6, 17, 0), V(-50.6, 91, 0)),
    Part.ArcOfCircle(Part.Circle(V(-49, 91, 0), V(0, 0, 1), 1.6), math.radians(3), math.radians(180)),
    Part.LineSegment(V(-47.4, 91.1, 0), V(-47.4, 17.1, 0)),
    Part.ArcOfCircle(Part.Circle(V(-49, 17, 0), V(0, 0, 1), 1.6), math.radians(180), math.radians(363)),
], False)
sketch12.addConstraint([
    Sketcher.Constraint("Tangent", 0, 2, 1, 2),
    Sketcher.Constraint("Coincident", 1, 1, 2, 1),
    Sketcher.Constraint("Coincident", 2, 2, 3, 2),
    Sketcher.Constraint("Tangent", 3, 1, 0, 1),
    Sketcher.Constraint("Vertical", 0),
    Sketcher.Constraint("Vertical", 2),
    Sketcher.Constraint("Equal", 1, 3),
    Sketcher.Constraint("DistanceY", 0, 1, 0, 2, Q("74 mm")),
    Sketcher.Constraint("Radius", 1, Q("1.65 mm")),
    Sketcher.Constraint("DistanceX", 1, 3, -1, 1, Q("49 mm")),
    Sketcher.Constraint("DistanceY", -1, 1, 1, 3, Q("91 mm")),
    Sketcher.Constraint("DistanceX", 1, 1, -1, 1, Q("47.351985 mm")),
])
sketch12.setExpression("Constraints[7]", "Params.sketch12_height")
sketch12.setExpression("Constraints[8]", "Params.sketch12_radius")
pocket2 = body.newObject("PartDesign::Pocket", "Pocket001")
pocket2.Profile = sketch12
pocket2.setExpression("Length", "Params.pocket2_length")
pocket2.Reversed = True

sketch13 = body.newObject("Sketcher::SketchObject", "Sketch012")
sketch13.AttachmentSupport = (doc.getObject("YZ_Plane"), [""])
sketch13.MapMode = "FlatFace"
sketch13.AttachmentOffset = App.Placement(V(0, 0, -20), App.Rotation())
sketch13.addGeometry([
    Part.LineSegment(V(-30, 7, 0), V(-30, 96, 0)),
    Part.LineSegment(V(-30, 96, 0), V(-40, 7, 0)),
    Part.LineSegment(V(-40, 7, 0), V(-30, 7, 0)),
], False)
sketch13.addConstraint([
    Sketcher.Constraint("Coincident", 0, 2, 1, 1),
    Sketcher.Constraint("Coincident", 1, 2, 2, 1),
    Sketcher.Constraint("Coincident", 2, 2, 0, 1),
    Sketcher.Constraint("Vertical", 0),
    Sketcher.Constraint("Horizontal", 2),
    Sketcher.Constraint("DistanceX", 2, 1, 2, 2, Q("10 mm")),
    Sketcher.Constraint("DistanceY", 0, 1, 0, 2, Q("89 mm")),
    Sketcher.Constraint("DistanceX", 0, 2, -1, 1, Q("30 mm")),
    Sketcher.Constraint("DistanceY", -1, 1, 0, 2, Q("96 mm")),
])
sketch13.setExpression("Constraints[5]", "Params.sketch13_width")
sketch13.setExpression("Constraints[6]", "Params.sketch13_height")
pad11 = body.newObject("PartDesign::Pad", "Pad010")
pad11.Profile = sketch13
pad11.setExpression("Length", "Params.pad11_length")
pad11.Reversed = True

doc.recompute()
